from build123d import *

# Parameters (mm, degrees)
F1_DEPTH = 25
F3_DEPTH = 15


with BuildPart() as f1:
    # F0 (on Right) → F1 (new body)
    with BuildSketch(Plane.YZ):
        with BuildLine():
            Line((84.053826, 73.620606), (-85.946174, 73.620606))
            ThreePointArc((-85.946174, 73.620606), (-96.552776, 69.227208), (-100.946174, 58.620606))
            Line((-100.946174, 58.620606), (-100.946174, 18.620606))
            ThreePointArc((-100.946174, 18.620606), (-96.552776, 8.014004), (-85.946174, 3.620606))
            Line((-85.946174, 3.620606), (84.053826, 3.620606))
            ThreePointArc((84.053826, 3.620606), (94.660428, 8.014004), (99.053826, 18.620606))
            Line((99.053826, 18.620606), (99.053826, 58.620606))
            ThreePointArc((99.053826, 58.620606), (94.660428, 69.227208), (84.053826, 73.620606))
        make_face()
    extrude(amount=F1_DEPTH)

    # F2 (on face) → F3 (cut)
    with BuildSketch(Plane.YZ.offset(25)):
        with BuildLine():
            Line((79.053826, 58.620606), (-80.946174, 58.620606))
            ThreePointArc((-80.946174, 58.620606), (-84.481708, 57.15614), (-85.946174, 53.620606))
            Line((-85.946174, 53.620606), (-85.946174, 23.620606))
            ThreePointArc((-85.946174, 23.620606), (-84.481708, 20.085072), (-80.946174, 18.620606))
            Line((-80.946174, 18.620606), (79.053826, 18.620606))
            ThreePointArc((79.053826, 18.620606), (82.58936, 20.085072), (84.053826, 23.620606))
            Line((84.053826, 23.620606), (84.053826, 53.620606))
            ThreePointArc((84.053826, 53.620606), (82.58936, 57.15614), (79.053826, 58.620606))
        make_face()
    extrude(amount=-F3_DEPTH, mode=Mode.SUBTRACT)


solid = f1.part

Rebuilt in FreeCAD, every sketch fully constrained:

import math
import FreeCAD as App
import Part
import Sketcher

V = App.Vector

doc = App.newDocument("Part")
body = doc.addObject("PartDesign::Body", "Body")

# Sketch on YZ plane
sketch1 = body.newObject("Sketcher::SketchObject", "Sketch")
sketch1.AttachmentSupport = (doc.getObject("YZ_Plane"), [""])
sketch1.MapMode = "FlatFace"
sketch1.addGeometry([
    Part.LineSegment(V(84, 74, 0), V(-86, 74, 0)),  # 0
    Part.ArcOfCircle(Part.Circle(V(-86, 59, 0), V(0, 0, 1), 15), math.radians(90), math.radians(180)),  # 1
    Part.LineSegment(V(-101, 59, 0), V(-101, 19, 0)),  # 2
    Part.ArcOfCircle(Part.Circle(V(-86, 19, 0), V(0, 0, 1), 15), math.radians(180), math.radians(270)),  # 3
    Part.LineSegment(V(-86, 4, 0), V(84, 4, 0)),  # 4
    Part.ArcOfCircle(Part.Circle(V(84, 19, 0), V(0, 0, 1), 15), math.radians(-90), math.radians(0)),  # 5
    Part.LineSegment(V(99, 19, 0), V(99, 59, 0)),  # 6
    Part.ArcOfCircle(Part.Circle(V(84, 59, 0), V(0, 0, 1), 15), math.radians(0), math.radians(90)),  # 7
], False)
sketch1.addConstraint([
    Sketcher.Constraint("Tangent", 0, 2, 1, 1),
    Sketcher.Constraint("Tangent", 1, 2, 2, 1),
    Sketcher.Constraint("Tangent", 2, 2, 3, 1),
    Sketcher.Constraint("Tangent", 3, 2, 4, 1),
    Sketcher.Constraint("Tangent", 4, 2, 5, 1),
    Sketcher.Constraint("Tangent", 5, 2, 6, 1),
    Sketcher.Constraint("Tangent", 6, 2, 7, 1),
    Sketcher.Constraint("Tangent", 7, 2, 0, 1),
    Sketcher.Constraint("Horizontal", 0),
    Sketcher.Constraint("Vertical", 2),
    Sketcher.Constraint("Horizontal", 4),
    Sketcher.Constraint("Vertical", 6),
    Sketcher.Constraint("Equal", 1, 3),
    Sketcher.Constraint("Equal", 3, 5),
    Sketcher.Constraint("Equal", 5, 7),
    Sketcher.Constraint("Radius", 1, 14.999999),
    Sketcher.Constraint("DistanceX", 0, 2, 0, 1, 170.0),
    Sketcher.Constraint("DistanceY", 2, 2, 2, 1, 40.0),
    Sketcher.Constraint("DistanceX", 1, 3, -1, 1, 85.946175),
    Sketcher.Constraint("DistanceY", -1, 1, 1, 3, 58.620607),
])
pad1 = body.newObject("PartDesign::Pad", "Pad")
pad1.Profile = sketch1
pad1.Length = 25

# Sketch on YZ plane
sketch2 = body.newObject("Sketcher::SketchObject", "Sketch001")
sketch2.AttachmentSupport = (doc.getObject("YZ_Plane"), [""])
sketch2.MapMode = "FlatFace"
sketch2.AttachmentOffset = App.Placement(V(0, 0, 25), App.Rotation())
sketch2.addGeometry([
    Part.LineSegment(V(79.1, 58.6, 0), V(-80.9, 58.6, 0)),  # 0
    Part.ArcOfCircle(Part.Circle(V(-80.9, 53.6, 0), V(0, 0, 1), 5), math.radians(90), math.radians(180)),  # 1
    Part.LineSegment(V(-85.9, 53.6, 0), V(-85.9, 23.6, 0)),  # 2
    Part.ArcOfCircle(Part.Circle(V(-80.9, 23.6, 0), V(0, 0, 1), 5), math.radians(180), math.radians(270)),  # 3
    Part.LineSegment(V(-80.9, 18.6, 0), V(79.1, 18.6, 0)),  # 4
    Part.ArcOfCircle(Part.Circle(V(79.1, 23.6, 0), V(0, 0, 1), 5), math.radians(-90), math.radians(0)),  # 5
    Part.LineSegment(V(84.1, 23.6, 0), V(84.1, 53.6, 0)),  # 6
    Part.ArcOfCircle(Part.Circle(V(79.1, 53.6, 0), V(0, 0, 1), 5), math.radians(0), math.radians(90)),  # 7
], False)
sketch2.addConstraint([
    Sketcher.Constraint("Tangent", 0, 2, 1, 1),
    Sketcher.Constraint("Tangent", 1, 2, 2, 1),
    Sketcher.Constraint("Tangent", 2, 2, 3, 1),
    Sketcher.Constraint("Tangent", 3, 2, 4, 1),
    Sketcher.Constraint("Tangent", 4, 2, 5, 1),
    Sketcher.Constraint("Tangent", 5, 2, 6, 1),
    Sketcher.Constraint("Tangent", 6, 2, 7, 1),
    Sketcher.Constraint("Tangent", 7, 2, 0, 1),
    Sketcher.Constraint("Horizontal", 0),
    Sketcher.Constraint("Vertical", 2),
    Sketcher.Constraint("Horizontal", 4),
    Sketcher.Constraint("Vertical", 6),
    Sketcher.Constraint("Equal", 1, 3),
    Sketcher.Constraint("Equal", 3, 5),
    Sketcher.Constraint("Equal", 5, 7),
    Sketcher.Constraint("Radius", 1, 5.0),
    Sketcher.Constraint("DistanceX", 0, 2, 0, 1, 160.0),
    Sketcher.Constraint("DistanceY", 2, 2, 2, 1, 30.0),
    Sketcher.Constraint("DistanceX", 1, 3, -1, 1, 80.946174),
    Sketcher.Constraint("DistanceY", -1, 1, 1, 3, 53.620606),
])
pocket1 = body.newObject("PartDesign::Pocket", "Pocket")
pocket1.Profile = sketch2
pocket1.Length = 15

doc.recompute()
